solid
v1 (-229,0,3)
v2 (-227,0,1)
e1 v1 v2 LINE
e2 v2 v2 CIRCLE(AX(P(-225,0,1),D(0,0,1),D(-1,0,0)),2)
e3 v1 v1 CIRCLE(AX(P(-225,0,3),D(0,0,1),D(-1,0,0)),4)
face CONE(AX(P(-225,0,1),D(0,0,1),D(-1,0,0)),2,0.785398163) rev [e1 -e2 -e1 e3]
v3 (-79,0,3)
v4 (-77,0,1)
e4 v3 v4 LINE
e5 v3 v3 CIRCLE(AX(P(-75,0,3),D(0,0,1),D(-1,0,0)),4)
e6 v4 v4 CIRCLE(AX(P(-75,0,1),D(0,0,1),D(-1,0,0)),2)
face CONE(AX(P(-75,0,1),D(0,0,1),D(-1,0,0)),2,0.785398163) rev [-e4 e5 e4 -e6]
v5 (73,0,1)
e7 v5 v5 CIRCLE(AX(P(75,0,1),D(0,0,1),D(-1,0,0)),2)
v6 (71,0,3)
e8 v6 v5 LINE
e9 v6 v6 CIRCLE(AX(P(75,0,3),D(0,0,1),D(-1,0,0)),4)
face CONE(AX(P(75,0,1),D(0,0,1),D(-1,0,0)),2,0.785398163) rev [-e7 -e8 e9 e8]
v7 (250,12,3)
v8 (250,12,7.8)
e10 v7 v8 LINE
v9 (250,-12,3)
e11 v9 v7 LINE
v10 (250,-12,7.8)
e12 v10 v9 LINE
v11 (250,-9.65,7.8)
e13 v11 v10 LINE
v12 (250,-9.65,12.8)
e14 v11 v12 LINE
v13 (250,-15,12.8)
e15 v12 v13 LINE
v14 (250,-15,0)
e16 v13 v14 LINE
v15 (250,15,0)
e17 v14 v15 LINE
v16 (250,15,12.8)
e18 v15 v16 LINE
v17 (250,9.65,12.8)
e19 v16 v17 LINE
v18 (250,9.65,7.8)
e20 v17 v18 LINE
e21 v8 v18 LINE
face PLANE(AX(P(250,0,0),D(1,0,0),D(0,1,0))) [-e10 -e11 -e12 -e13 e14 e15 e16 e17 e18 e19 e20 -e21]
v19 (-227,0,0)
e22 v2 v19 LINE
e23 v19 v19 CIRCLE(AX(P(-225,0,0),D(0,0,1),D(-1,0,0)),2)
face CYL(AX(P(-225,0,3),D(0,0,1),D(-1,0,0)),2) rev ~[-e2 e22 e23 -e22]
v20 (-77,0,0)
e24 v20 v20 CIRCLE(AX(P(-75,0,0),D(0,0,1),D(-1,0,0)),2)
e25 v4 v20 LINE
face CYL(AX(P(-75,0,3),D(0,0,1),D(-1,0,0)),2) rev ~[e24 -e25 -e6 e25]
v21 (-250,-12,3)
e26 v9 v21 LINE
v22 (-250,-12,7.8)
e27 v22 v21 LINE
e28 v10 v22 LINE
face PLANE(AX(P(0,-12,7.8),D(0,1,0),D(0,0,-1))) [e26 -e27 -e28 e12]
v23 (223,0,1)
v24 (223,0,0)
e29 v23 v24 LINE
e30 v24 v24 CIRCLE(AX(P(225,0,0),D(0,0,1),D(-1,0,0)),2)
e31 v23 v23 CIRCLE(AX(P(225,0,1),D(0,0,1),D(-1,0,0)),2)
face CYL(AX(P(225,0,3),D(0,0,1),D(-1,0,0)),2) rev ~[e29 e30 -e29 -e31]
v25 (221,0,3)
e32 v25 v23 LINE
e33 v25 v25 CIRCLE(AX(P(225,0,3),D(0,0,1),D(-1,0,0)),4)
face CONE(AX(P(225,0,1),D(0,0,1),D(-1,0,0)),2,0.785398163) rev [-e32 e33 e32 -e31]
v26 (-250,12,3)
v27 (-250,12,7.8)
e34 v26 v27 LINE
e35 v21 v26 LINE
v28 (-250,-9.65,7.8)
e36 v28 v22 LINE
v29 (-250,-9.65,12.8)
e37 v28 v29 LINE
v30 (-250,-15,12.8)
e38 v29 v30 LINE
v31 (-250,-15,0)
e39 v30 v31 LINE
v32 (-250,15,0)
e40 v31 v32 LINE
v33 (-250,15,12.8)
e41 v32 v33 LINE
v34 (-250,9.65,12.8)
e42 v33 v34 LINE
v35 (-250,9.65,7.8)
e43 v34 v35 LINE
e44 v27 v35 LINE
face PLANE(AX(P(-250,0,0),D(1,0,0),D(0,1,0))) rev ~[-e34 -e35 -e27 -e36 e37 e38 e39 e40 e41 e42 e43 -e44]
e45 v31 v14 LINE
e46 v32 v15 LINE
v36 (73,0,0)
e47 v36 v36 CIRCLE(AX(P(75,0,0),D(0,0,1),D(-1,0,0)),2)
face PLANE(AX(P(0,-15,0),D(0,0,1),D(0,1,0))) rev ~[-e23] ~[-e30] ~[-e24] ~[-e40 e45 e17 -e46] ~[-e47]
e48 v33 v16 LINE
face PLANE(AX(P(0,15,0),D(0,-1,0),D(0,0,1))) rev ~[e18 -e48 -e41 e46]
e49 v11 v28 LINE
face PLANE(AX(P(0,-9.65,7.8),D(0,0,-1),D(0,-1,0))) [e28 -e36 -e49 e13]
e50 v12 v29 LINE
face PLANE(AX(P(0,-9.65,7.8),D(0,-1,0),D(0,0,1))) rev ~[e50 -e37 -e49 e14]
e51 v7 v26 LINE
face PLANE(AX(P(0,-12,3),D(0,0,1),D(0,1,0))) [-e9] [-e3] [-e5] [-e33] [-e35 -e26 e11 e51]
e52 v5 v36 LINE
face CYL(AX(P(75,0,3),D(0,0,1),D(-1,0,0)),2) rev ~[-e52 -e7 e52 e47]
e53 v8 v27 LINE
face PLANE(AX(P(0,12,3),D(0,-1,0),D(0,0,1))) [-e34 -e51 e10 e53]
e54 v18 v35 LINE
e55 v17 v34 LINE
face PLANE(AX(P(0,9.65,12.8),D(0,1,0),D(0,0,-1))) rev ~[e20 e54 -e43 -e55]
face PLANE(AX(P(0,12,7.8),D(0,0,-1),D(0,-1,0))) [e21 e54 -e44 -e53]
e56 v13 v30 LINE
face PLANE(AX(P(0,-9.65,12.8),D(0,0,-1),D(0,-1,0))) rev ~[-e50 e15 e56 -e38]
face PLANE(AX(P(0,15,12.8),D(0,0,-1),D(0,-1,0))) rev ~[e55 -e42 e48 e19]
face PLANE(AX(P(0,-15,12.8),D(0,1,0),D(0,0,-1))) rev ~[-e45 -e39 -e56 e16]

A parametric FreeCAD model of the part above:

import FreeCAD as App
import Part
import Sketcher

V = App.Vector
Q = App.Units.Quantity


def edges_at(feature, points):
    """Names of the edges that pass closest to the given points."""
    edges = feature.Shape.Edges
    near = lambda p: min(range(len(edges)), key=lambda i: edges[i].distToShape(Part.Vertex(*p))[0])
    return sorted({f"Edge{near(p) + 1}" for p in points})

doc = App.newDocument("Part")
body = doc.addObject("PartDesign::Body", "Body")

sketch1 = body.newObject("Sketcher::SketchObject", "Sketch")
sketch1.AttachmentSupport = (doc.getObject("YZ_Plane"), [""])
sketch1.MapMode = "FlatFace"
sketch1.addGeometry(Part.LineSegment(V(-15, 12.8, 0), V(-15, 0, 0)), False)
sketch1.addGeometry(Part.LineSegment(V(-15, 0, 0), V(15, 0, 0)), False)
sketch1.addGeometry(Part.LineSegment(V(15, 0, 0), V(15, 12.8, 0)), False)
sketch1.addGeometry(Part.LineSegment(V(15, 12.8, 0), V(9.65, 12.8, 0)), False)
sketch1.addGeometry(Part.LineSegment(V(9.65, 12.8, 0), V(9.65, 7.8, 0)), False)
sketch1.addGeometry(Part.LineSegment(V(9.65, 7.8, 0), V(12, 7.8, 0)), False)
sketch1.addGeometry(Part.LineSegment(V(12, 7.8, 0), V(12, 3, 0)), False)
sketch1.addGeometry(Part.LineSegment(V(12, 3, 0), V(-12, 3, 0)), False)
sketch1.addGeometry(Part.LineSegment(V(-12, 3, 0), V(-12, 7.8, 0)), False)
sketch1.addGeometry(Part.LineSegment(V(-12, 7.8, 0), V(-9.65, 7.8, 0)), False)
sketch1.addGeometry(Part.LineSegment(V(-9.65, 7.8, 0), V(-9.65, 12.8, 0)), False)
sketch1.addGeometry(Part.LineSegment(V(-9.65, 12.8, 0), V(-15, 12.8, 0)), False)
sketch1.addConstraint(Sketcher.Constraint("Coincident", 0, 2, 1, 1))
sketch1.addConstraint(Sketcher.Constraint("Coincident", 1, 2, 2, 1))
sketch1.addConstraint(Sketcher.Constraint("Coincident", 2, 2, 3, 1))
sketch1.addConstraint(Sketcher.Constraint("Coincident", 3, 2, 4, 1))
sketch1.addConstraint(Sketcher.Constraint("Coincident", 4, 2, 5, 1))
sketch1.addConstraint(Sketcher.Constraint("Coincident", 5, 2, 6, 1))
sketch1.addConstraint(Sketcher.Constraint("Coincident", 6, 2, 7, 1))
sketch1.addConstraint(Sketcher.Constraint("Coincident", 7, 2, 8, 1))
sketch1.addConstraint(Sketcher.Constraint("Coincident", 8, 2, 9, 1))
sketch1.addConstraint(Sketcher.Constraint("Coincident", 9, 2, 10, 1))
sketch1.addConstraint(Sketcher.Constraint("Coincident", 10, 2, 11, 1))
sketch1.addConstraint(Sketcher.Constraint("Coincident", 11, 2, 0, 1))
sketch1.addConstraint(Sketcher.Constraint("Vertical", 0))
sketch1.addConstraint(Sketcher.Constraint("Horizontal", 1))
sketch1.addConstraint(Sketcher.Constraint("Vertical", 2))
sketch1.addConstraint(Sketcher.Constraint("Horizontal", 3))
sketch1.addConstraint(Sketcher.Constraint("Vertical", 4))
sketch1.addConstraint(Sketcher.Constraint("Horizontal", 5))
sketch1.addConstraint(Sketcher.Constraint("Vertical", 6))
sketch1.addConstraint(Sketcher.Constraint("Horizontal", 7))
sketch1.addConstraint(Sketcher.Constraint("Vertical", 8))
sketch1.addConstraint(Sketcher.Constraint("Horizontal", 9))
sketch1.addConstraint(Sketcher.Constraint("Vertical", 10))
sketch1.addConstraint(Sketcher.Constraint("Horizontal", 11))
sketch1.addConstraint(Sketcher.Constraint("Symmetric", 0, 2, 1, 2, -1, 1))
sketch1.addConstraint(Sketcher.Constraint("Symmetric", 5, 2, 8, 2, -2))
sketch1.addConstraint(Sketcher.Constraint("Symmetric", 3, 2, 10, 2, -2))
sketch1.addConstraint(Sketcher.Constraint("DistanceX", 1, 1, 1, 2, Q("30 mm")))
sketch1.addConstraint(Sketcher.Constraint("DistanceX", 7, 2, 7, 1, Q("24 mm")))
sketch1.addConstraint(Sketcher.Constraint("DistanceY", 4, 2, 4, 1, Q("5 mm")))
sketch1.addConstraint(Sketcher.Constraint("DistanceY", 0, 2, 0, 1, Q("12.8 mm")))
sketch1.addConstraint(Sketcher.Constraint("DistanceY", 6, 2, 6, 1, Q("4.8 mm")))
sketch1.addConstraint(Sketcher.Constraint("DistanceX", 9, 2, 4, 2, Q("19.3 mm")))
pad1 = body.newObject("PartDesign::Pad", "Pad")
pad1.Profile = sketch1
pad1.Length = 500
pad1.Midplane = True

sketch2 = body.newObject("Sketcher::SketchObject", "Sketch001")
sketch2.AttachmentSupport = (doc.getObject("XY_Plane"), [""])
sketch2.MapMode = "FlatFace"
sketch2.AttachmentOffset = App.Placement(V(0, 0, 3), App.Rotation())
sketch2.addGeometry(Part.Circle(V(-225, 0, 0), V(0, 0, 1), 2), False)
sketch2.addGeometry(Part.Circle(V(225, 0, 0), V(0, 0, 1), 2), False)
sketch2.addGeometry(Part.Circle(V(75, 0, 0), V(0, 0, 1), 2), False)
sketch2.addGeometry(Part.Circle(V(-75, 0, 0), V(0, 0, 1), 2), False)
sketch2.addConstraint(Sketcher.Constraint("Equal", 0, 1))
sketch2.addConstraint(Sketcher.Constraint("Equal", 1, 2))
sketch2.addConstraint(Sketcher.Constraint("Equal", 2, 3))
sketch2.addConstraint(Sketcher.Constraint("Symmetric", 0, 3, 1, 3, -1, 1))
sketch2.addConstraint(Sketcher.Constraint("Symmetric", 2, 3, 3, 3, -1, 1))
sketch2.addConstraint(Sketcher.Constraint("PointOnObject", 0, 3, -1))
sketch2.addConstraint(Sketcher.Constraint("PointOnObject", 2, 3, -1))
sketch2.addConstraint(Sketcher.Constraint("Diameter", 0, Q("4 mm")))
sketch2.addConstraint(Sketcher.Constraint("DistanceX", 2, 3, 1, 3, Q("150 mm")))
sketch2.addConstraint(Sketcher.Constraint("DistanceX", 3, 3, 2, 3, Q("150 mm")))
pocket1 = body.newObject("PartDesign::Pocket", "Pocket")
pocket1.Profile = sketch2
pocket1.Type = "ThroughAll"
doc.recompute()

chamfer = body.newObject("PartDesign::Chamfer", "Chamfer")
chamfer.Base = (pocket1, edges_at(pocket1, [
    (226.865, -0.723, 3),
    (76.865, -0.723, 3),
    (-73.135, -0.723, 3),
    (-223.135, -0.723, 3),
]))
chamfer.Size = 2

doc.recompute()
